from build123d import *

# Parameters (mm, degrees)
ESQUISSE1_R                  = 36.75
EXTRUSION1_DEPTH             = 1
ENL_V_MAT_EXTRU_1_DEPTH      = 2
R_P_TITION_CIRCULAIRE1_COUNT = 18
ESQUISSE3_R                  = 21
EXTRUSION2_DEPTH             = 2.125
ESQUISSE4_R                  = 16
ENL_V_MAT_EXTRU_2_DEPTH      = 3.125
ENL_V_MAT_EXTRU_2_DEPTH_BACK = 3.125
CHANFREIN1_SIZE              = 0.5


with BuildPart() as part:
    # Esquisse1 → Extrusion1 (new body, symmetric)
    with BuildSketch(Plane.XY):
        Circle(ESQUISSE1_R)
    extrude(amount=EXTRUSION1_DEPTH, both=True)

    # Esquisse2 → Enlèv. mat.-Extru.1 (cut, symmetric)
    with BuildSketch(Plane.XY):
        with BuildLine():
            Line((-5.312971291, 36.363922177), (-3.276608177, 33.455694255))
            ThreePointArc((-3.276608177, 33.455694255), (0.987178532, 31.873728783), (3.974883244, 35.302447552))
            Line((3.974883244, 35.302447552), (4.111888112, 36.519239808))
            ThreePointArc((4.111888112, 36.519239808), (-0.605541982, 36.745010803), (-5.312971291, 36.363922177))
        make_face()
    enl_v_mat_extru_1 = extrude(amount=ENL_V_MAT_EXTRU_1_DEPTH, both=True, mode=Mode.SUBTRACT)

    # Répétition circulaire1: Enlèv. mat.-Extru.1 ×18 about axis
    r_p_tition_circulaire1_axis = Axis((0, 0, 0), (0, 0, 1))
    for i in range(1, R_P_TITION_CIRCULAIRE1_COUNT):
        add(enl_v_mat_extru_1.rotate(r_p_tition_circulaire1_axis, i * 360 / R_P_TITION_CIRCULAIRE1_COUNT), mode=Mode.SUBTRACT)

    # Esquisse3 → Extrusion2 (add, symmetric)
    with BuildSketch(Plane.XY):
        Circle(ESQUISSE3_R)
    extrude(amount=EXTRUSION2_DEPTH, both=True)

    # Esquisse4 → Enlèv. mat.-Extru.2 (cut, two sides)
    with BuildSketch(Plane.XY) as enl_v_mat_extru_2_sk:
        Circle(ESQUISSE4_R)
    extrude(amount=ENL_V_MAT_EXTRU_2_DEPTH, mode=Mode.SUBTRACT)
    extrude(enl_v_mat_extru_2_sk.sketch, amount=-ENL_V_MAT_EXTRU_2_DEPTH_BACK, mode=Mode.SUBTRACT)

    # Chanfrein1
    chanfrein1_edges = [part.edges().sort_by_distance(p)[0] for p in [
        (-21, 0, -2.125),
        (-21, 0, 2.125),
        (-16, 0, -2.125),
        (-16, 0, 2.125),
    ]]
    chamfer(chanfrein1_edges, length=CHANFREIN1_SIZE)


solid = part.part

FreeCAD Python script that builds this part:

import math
import FreeCAD as App
import Part
import Sketcher
from FreeCAD import Vector
Q = App.Units.Quantity


def edges_at(feature, points):
    """Names of the edges that pass closest to the given points."""
    edges = feature.Shape.Edges
    near = lambda p: min(range(len(edges)), key=lambda i: edges[i].distToShape(Part.Vertex(*p))[0])
    return sorted({f"Edge{near(p) + 1}" for p in points})

doc = App.newDocument("Part")
body = doc.addObject("PartDesign::Body", "Body")

sketch1 = doc.addObject("Sketcher::SketchObject", "Sketch")
body.addObject(sketch1)
sketch1.AttachmentSupport = (doc.XY_Plane, [""])
sketch1.MapMode = "FlatFace"
sketch1.addGeometry(Part.Circle(Vector(0, 0, 0), Vector(0, 0, 1), 36.75), False)
sketch1.addConstraint(Sketcher.Constraint("Coincident", 0, 3, -1, 1))
sketch1.addConstraint(Sketcher.Constraint("Diameter", 0, Q("73.5 mm")))
pad1 = doc.addObject("PartDesign::Pad", "Pad")
body.addObject(pad1)
pad1.Profile = sketch1
pad1.Length = 2
pad1.Midplane = True

sketch2 = doc.addObject("Sketcher::SketchObject", "Sketch001")
body.addObject(sketch2)
sketch2.AttachmentSupport = (doc.XY_Plane, [""])
sketch2.MapMode = "FlatFace"
sketch2.addGeometry(Part.LineSegment(Vector(-5.312971, 36.363922, 0), Vector(-3.276608, 33.455694, 0)), False)
sketch2.addGeometry(Part.ArcOfCircle(Part.Circle(Vector(0, 35.75, 0), Vector(0, 0, 1), 4), math.radians(-145), math.radians(-6.424168)), False)
sketch2.addGeometry(Part.LineSegment(Vector(3.974883, 35.302448, 0), Vector(4.111888, 36.51924, 0)), False)
sketch2.addGeometry(Part.ArcOfCircle(Part.Circle(Vector(0, 0, 0), Vector(0, 0, 1), 36.75), math.radians(83.575832), math.radians(98.312417)), False)
sketch2.addConstraint(Sketcher.Constraint("Tangent", 0, 2, 1, 1))
sketch2.addConstraint(Sketcher.Constraint("Tangent", 1, 2, 2, 1))
sketch2.addConstraint(Sketcher.Constraint("Coincident", 2, 2, 3, 1))
sketch2.addConstraint(Sketcher.Constraint("Coincident", 3, 2, 0, 1))
sketch2.addConstraint(Sketcher.Constraint("Coincident", 3, 3, -1, 1))
sketch2.addConstraint(Sketcher.Constraint("PointOnObject", 1, 3, -2))
sketch2.addConstraint(Sketcher.Constraint("Radius", 1, Q("4 mm")))
sketch2.addConstraint(Sketcher.Constraint("Angle", 0, Q("-55 deg")))
sketch2.addConstraint(Sketcher.Constraint("Radius", 3, Q("36.75 mm")))
sketch2.addConstraint(Sketcher.Constraint("DistanceY", -1, 1, 1, 3, Q("35.75 mm")))
sketch2.addConstraint(Sketcher.Constraint("Distance", 2, Q("1.224481 mm")))
pocket1 = doc.addObject("PartDesign::Pocket", "Pocket")
body.addObject(pocket1)
pocket1.Profile = sketch2
pocket1.Length = 4
pocket1.Midplane = True
doc.recompute()

polarpattern = doc.addObject("PartDesign::PolarPattern", "PolarPattern")
body.addObject(polarpattern)
polarpattern.Originals = [pocket1]
polarpattern.Axis = (doc.Z_Axis, [""])
polarpattern.Angle = 360
polarpattern.Occurrences = 18
body.Tip = polarpattern

sketch3 = doc.addObject("Sketcher::SketchObject", "Sketch002")
body.addObject(sketch3)
sketch3.AttachmentSupport = (doc.XY_Plane, [""])
sketch3.MapMode = "FlatFace"
sketch3.addGeometry(Part.Circle(Vector(0, 0, 0), Vector(0, 0, 1), 21), False)
sketch3.addConstraint(Sketcher.Constraint("Coincident", 0, 3, -1, 1))
sketch3.addConstraint(Sketcher.Constraint("Diameter", 0, Q("42 mm")))
pad2 = doc.addObject("PartDesign::Pad", "Pad001")
body.addObject(pad2)
pad2.Profile = sketch3
pad2.Length = 4.25
pad2.Midplane = True

sketch4 = doc.addObject("Sketcher::SketchObject", "Sketch003")
body.addObject(sketch4)
sketch4.AttachmentSupport = (doc.XY_Plane, [""])
sketch4.MapMode = "FlatFace"
sketch4.addGeometry(Part.Circle(Vector(0, 0, 0), Vector(0, 0, 1), 16), False)
sketch4.addConstraint(Sketcher.Constraint("Coincident", 0, 3, -1, 1))
sketch4.addConstraint(Sketcher.Constraint("Diameter", 0, Q("32 mm")))
pocket2 = doc.addObject("PartDesign::Pocket", "Pocket001")
body.addObject(pocket2)
pocket2.Profile = sketch4
pocket2.Type = "ThroughAll"
pocket2.Midplane = True
doc.recompute()

chamfer = doc.addObject("PartDesign::Chamfer", "Chamfer")
body.addObject(chamfer)
chamfer.Base = (pocket2, edges_at(pocket2, [
    (-21, 0, -2.125),
    (-21, 0, 2.125),
    (-16, 0, -2.125),
    (-16, 0, 2.125),
]))
chamfer.Size = 0.5

doc.recompute()
